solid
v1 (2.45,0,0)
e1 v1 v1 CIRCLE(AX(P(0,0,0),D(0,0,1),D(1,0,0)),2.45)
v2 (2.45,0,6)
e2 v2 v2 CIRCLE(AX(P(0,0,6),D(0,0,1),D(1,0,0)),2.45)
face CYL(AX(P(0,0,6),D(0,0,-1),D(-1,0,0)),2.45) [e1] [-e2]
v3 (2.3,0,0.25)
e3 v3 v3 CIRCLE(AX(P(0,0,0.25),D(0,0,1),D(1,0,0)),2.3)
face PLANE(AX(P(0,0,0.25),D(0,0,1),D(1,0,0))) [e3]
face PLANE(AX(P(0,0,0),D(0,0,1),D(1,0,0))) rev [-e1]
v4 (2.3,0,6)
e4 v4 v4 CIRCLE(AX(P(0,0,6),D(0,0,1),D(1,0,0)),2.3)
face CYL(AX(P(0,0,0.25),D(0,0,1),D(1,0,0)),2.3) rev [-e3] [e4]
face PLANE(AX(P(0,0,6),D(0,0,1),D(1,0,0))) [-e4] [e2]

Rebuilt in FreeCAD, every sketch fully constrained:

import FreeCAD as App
import Part
import Sketcher

doc = App.newDocument("Part")
body = doc.addObject("PartDesign::Body", "Body")

# Sketch on XY plane
sketch1 = body.newObject("Sketcher::SketchObject", "Sketch")
sketch1.AttachmentSupport = (doc.getObject("XY_Plane"), [""])
sketch1.MapMode = "FlatFace"
sketch1.addGeometry(Part.Circle(App.Vector(0, 0, 0), App.Vector(0, 0, 1), 2.5), False)
sketch1.addConstraint([
    Sketcher.Constraint("Coincident", 0, 3, -1, 1),
    Sketcher.Constraint("Diameter", 0, 4.9),
])
pad1 = body.newObject("PartDesign::Pad", "Pad")
pad1.Profile = sketch1
pad1.Length = 6

# Sketch on XY plane
sketch2 = body.newObject("Sketcher::SketchObject", "Sketch001")
sketch2.AttachmentSupport = (doc.getObject("XY_Plane"), [""])
sketch2.MapMode = "FlatFace"
sketch2.AttachmentOffset = App.Placement(App.Vector(0, 0, 6), App.Rotation())
sketch2.addGeometry(Part.Circle(App.Vector(0, 0, 0), App.Vector(0, 0, 1), 2.3), False)
sketch2.addConstraint([
    Sketcher.Constraint("Coincident", 0, 3, -1, 1),
    Sketcher.Constraint("Diameter", 0, 4.6),
])
pocket1 = body.newObject("PartDesign::Pocket", "Pocket")
pocket1.Profile = sketch2
pocket1.Length = 5.75

doc.recompute()
